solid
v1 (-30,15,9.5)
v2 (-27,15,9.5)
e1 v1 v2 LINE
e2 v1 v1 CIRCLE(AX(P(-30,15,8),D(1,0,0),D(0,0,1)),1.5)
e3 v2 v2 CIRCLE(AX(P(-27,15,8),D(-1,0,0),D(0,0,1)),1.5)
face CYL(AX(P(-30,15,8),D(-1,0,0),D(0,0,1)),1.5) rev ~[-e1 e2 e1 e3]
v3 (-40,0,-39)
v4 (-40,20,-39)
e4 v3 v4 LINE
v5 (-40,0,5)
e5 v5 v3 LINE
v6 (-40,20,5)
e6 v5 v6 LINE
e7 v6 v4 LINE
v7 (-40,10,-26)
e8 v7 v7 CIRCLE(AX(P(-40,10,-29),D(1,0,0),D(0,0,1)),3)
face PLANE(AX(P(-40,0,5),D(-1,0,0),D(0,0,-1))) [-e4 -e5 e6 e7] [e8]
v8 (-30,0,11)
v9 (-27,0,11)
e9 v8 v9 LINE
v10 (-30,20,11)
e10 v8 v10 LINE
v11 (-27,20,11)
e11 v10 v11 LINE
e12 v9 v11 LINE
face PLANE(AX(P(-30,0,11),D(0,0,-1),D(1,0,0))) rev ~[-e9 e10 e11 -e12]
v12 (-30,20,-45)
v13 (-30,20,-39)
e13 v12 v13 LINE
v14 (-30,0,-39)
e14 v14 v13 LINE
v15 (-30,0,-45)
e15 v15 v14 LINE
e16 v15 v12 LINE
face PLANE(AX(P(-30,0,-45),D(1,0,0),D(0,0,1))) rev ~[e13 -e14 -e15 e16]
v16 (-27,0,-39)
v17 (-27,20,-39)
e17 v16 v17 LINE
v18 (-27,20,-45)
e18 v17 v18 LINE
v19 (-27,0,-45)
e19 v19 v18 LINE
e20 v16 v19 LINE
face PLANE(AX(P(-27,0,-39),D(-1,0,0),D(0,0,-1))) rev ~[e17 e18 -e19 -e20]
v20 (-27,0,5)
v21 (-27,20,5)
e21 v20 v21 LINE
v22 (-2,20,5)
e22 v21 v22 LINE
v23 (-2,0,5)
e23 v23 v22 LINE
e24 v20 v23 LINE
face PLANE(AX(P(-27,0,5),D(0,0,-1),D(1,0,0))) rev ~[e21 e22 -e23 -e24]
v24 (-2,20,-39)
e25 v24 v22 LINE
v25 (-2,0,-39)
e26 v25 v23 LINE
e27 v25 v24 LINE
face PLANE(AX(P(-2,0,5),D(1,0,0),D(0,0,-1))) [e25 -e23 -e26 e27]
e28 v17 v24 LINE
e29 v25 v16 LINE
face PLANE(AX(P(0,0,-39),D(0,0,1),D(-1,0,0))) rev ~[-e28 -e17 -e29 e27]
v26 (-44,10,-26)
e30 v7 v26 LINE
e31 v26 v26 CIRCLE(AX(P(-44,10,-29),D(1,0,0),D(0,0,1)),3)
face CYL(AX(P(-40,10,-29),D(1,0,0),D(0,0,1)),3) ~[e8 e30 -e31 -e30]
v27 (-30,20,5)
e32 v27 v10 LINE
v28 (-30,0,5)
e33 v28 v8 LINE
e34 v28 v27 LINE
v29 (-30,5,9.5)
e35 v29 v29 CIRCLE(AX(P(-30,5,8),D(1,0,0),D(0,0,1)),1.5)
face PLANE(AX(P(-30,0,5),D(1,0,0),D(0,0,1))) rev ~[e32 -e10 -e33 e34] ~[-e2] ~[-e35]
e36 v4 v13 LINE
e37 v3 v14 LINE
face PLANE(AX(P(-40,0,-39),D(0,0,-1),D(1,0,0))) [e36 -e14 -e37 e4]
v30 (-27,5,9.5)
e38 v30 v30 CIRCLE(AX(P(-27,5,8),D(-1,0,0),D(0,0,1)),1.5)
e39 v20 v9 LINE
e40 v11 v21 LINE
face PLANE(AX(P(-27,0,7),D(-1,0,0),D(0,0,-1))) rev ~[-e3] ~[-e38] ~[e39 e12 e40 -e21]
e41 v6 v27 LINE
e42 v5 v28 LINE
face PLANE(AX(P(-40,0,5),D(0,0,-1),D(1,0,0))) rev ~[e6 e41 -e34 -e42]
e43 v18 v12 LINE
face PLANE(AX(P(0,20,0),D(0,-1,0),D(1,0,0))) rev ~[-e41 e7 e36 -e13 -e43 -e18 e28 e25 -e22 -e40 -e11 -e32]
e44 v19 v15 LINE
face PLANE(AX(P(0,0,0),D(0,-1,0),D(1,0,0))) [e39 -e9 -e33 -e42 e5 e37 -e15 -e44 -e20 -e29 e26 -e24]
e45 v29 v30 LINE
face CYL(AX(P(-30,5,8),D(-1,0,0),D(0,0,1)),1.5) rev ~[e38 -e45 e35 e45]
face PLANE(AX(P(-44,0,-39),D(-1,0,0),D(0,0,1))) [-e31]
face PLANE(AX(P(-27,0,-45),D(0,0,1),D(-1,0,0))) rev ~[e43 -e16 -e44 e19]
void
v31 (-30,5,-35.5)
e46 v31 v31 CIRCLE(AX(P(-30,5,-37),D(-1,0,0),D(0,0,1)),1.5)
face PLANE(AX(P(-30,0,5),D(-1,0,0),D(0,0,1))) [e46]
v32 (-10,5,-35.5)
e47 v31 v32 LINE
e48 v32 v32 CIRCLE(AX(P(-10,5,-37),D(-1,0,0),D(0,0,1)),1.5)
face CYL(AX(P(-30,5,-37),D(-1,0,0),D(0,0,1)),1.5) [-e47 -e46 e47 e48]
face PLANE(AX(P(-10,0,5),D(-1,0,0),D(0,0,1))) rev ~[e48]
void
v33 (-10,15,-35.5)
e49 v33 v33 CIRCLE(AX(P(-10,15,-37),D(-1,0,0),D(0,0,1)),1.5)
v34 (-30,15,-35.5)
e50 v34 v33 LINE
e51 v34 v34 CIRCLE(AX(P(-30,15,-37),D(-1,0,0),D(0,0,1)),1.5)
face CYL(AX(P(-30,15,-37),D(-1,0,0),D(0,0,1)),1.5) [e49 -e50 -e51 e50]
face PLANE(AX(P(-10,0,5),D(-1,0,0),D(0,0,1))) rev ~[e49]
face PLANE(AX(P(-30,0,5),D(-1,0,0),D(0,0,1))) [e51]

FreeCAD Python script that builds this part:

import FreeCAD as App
import Part
import Sketcher

V = App.Vector
Q = App.Units.Quantity


def add_polygon(sketch, points):
    """Adds a closed chain of lines whose ends are joined by coincident constraints."""
    first, n = sketch.GeometryCount, len(points)
    for a, b in zip(points, points[1:] + points[:1]):
        sketch.addGeometry(Part.LineSegment(App.Vector(*a, 0), App.Vector(*b, 0)), False)
    for i in range(n):
        sketch.addConstraint(Sketcher.Constraint("Coincident", first + i, 2, first + (i + 1) % n, 1))

doc = App.newDocument("Part")
body = doc.addObject("PartDesign::Body", "Body")

# Sketch on XZ plane
sketch1 = body.newObject("Sketcher::SketchObject", "Sketch")
sketch1.AttachmentSupport = (doc.getObject("XZ_Plane"), [""])
sketch1.MapMode = "FlatFace"
add_polygon(sketch1, [(-40, -39), (-40, 5), (-30, 5), (-30, 11), (-27, 11), (-27, 5), (0, 5), (0, -39), (-27, -39), (-27, -45), (-30, -45), (-30, -39)])  # lines 0-11
sketch1.addConstraint(Sketcher.Constraint("Vertical", 0))
sketch1.addConstraint(Sketcher.Constraint("Horizontal", 1))
sketch1.addConstraint(Sketcher.Constraint("Vertical", 2))
sketch1.addConstraint(Sketcher.Constraint("Horizontal", 3))
sketch1.addConstraint(Sketcher.Constraint("Vertical", 4))
sketch1.addConstraint(Sketcher.Constraint("Horizontal", 5))
sketch1.addConstraint(Sketcher.Constraint("Vertical", 6))
sketch1.addConstraint(Sketcher.Constraint("Horizontal", 7))
sketch1.addConstraint(Sketcher.Constraint("Vertical", 8))
sketch1.addConstraint(Sketcher.Constraint("Horizontal", 9))
sketch1.addConstraint(Sketcher.Constraint("Vertical", 10))
sketch1.addConstraint(Sketcher.Constraint("Horizontal", 11))
sketch1.addConstraint(Sketcher.Constraint("PointOnObject", 5, 2, -2))
sketch1.addConstraint(Sketcher.Constraint("Horizontal", 1, 2, 4, 2))
sketch1.addConstraint(Sketcher.Constraint("Horizontal", 7, 2, 10, 2))
sketch1.addConstraint(Sketcher.Constraint("Vertical", 4, 2, 7, 2))
sketch1.addConstraint(Sketcher.Constraint("Vertical", 2, 2, 9, 2))
sketch1.addConstraint(Sketcher.Constraint("Equal", 4, 8))
sketch1.addConstraint(Sketcher.Constraint("DistanceX", 1, 1, 1, 2, Q("10 mm")))
sketch1.addConstraint(Sketcher.Constraint("DistanceX", 3, 1, 3, 2, Q("3 mm")))
sketch1.addConstraint(Sketcher.Constraint("DistanceY", 0, 1, 0, 2, Q("44 mm")))
sketch1.addConstraint(Sketcher.Constraint("DistanceY", 2, 1, 2, 2, Q("6 mm")))
sketch1.addConstraint(Sketcher.Constraint("DistanceX", 0, 2, -1, 1, Q("40 mm")))
sketch1.addConstraint(Sketcher.Constraint("DistanceY", -1, 1, 0, 2, Q("5 mm")))
pad1 = body.newObject("PartDesign::Pad", "Pad")
pad1.Profile = sketch1
pad1.Length = 20
pad1.Reversed = True

# Sketch on YZ plane
sketch2 = body.newObject("Sketcher::SketchObject", "Sketch001")
sketch2.AttachmentSupport = (doc.getObject("YZ_Plane"), [""])
sketch2.MapMode = "FlatFace"
sketch2.AttachmentOffset = App.Placement(V(0, 0, -30), App.Rotation())
sketch2.addGeometry(Part.Circle(V(15, 8, 0), V(0, 0, 1), 1.5), False)
sketch2.addGeometry(Part.Circle(V(5, 8, 0), V(0, 0, 1), 1.5), False)
sketch2.addGeometry(Part.Circle(V(15, -37, 0), V(0, 0, 1), 1.5), False)
sketch2.addGeometry(Part.Circle(V(5, -37, 0), V(0, 0, 1), 1.5), False)
sketch2.addConstraint(Sketcher.Constraint("Equal", 0, 1))
sketch2.addConstraint(Sketcher.Constraint("Equal", 1, 2))
sketch2.addConstraint(Sketcher.Constraint("Equal", 2, 3))
sketch2.addConstraint(Sketcher.Constraint("Horizontal", 0, 3, 1, 3))
sketch2.addConstraint(Sketcher.Constraint("Horizontal", 2, 3, 3, 3))
sketch2.addConstraint(Sketcher.Constraint("Vertical", 0, 3, 2, 3))
sketch2.addConstraint(Sketcher.Constraint("Vertical", 1, 3, 3, 3))
sketch2.addConstraint(Sketcher.Constraint("Diameter", 0, Q("3 mm")))
sketch2.addConstraint(Sketcher.Constraint("DistanceX", -1, 1, 1, 3, Q("5 mm")))
sketch2.addConstraint(Sketcher.Constraint("DistanceX", 1, 3, 0, 3, Q("10 mm")))
sketch2.addConstraint(Sketcher.Constraint("DistanceY", -1, 1, 0, 3, Q("8 mm")))
sketch2.addConstraint(Sketcher.Constraint("DistanceY", 2, 3, -1, 1, Q("37 mm")))
pocket1 = body.newObject("PartDesign::Pocket", "Pocket")
pocket1.Profile = sketch2
pocket1.Length = 20
pocket1.Reversed = True

# Sketch on YZ plane
sketch3 = body.newObject("Sketcher::SketchObject", "Sketch002")
sketch3.AttachmentSupport = (doc.getObject("YZ_Plane"), [""])
sketch3.MapMode = "FlatFace"
sketch3.AttachmentOffset = App.Placement(V(0, 0, -40), App.Rotation())
sketch3.addGeometry(Part.Circle(V(10, -29, 0), V(0, 0, 1), 3), False)
sketch3.addConstraint(Sketcher.Constraint("Diameter", 0, Q("6 mm")))
sketch3.addConstraint(Sketcher.Constraint("DistanceX", -1, 1, 0, 3, Q("10 mm")))
sketch3.addConstraint(Sketcher.Constraint("DistanceY", 0, 3, -1, 1, Q("29 mm")))
pad2 = body.newObject("PartDesign::Pad", "Pad001")
pad2.Profile = sketch3
pad2.Length = 4
pad2.Reversed = True

# Sketch on YZ plane
sketch4 = body.newObject("Sketcher::SketchObject", "Sketch003")
sketch4.AttachmentSupport = (doc.getObject("YZ_Plane"), [""])
sketch4.MapMode = "FlatFace"
add_polygon(sketch4, [(20, 0), (0, 0), (0, -39), (20, -39)])  # lines 0-3
sketch4.addConstraint(Sketcher.Constraint("Horizontal", 0))
sketch4.addConstraint(Sketcher.Constraint("Vertical", 1))
sketch4.addConstraint(Sketcher.Constraint("Horizontal", 2))
sketch4.addConstraint(Sketcher.Constraint("Vertical", 3))
sketch4.addConstraint(Sketcher.Constraint("Coincident", 0, 2, -1, 1))
sketch4.addConstraint(Sketcher.Constraint("DistanceX", 0, 2, 0, 1, Q("20 mm")))
sketch4.addConstraint(Sketcher.Constraint("DistanceY", 1, 2, 1, 1, Q("39 mm")))
pocket2 = body.newObject("PartDesign::Pocket", "Pocket001")
pocket2.Profile = sketch4
pocket2.Length = 2

# Sketch on XZ plane
sketch5 = body.newObject("Sketcher::SketchObject", "Sketch004")
sketch5.AttachmentSupport = (doc.getObject("XZ_Plane"), [""])
sketch5.MapMode = "FlatFace"
add_polygon(sketch5, [(0, 0), (-2, 0), (-2, -39), (0, -39)])  # lines 0-3
sketch5.addConstraint(Sketcher.Constraint("Horizontal", 0))
sketch5.addConstraint(Sketcher.Constraint("Vertical", 1))
sketch5.addConstraint(Sketcher.Constraint("Horizontal", 2))
sketch5.addConstraint(Sketcher.Constraint("Vertical", 3))
sketch5.addConstraint(Sketcher.Constraint("Coincident", 3, 2, -1, 1))
sketch5.addConstraint(Sketcher.Constraint("DistanceX", 0, 2, 0, 1, Q("2 mm")))
sketch5.addConstraint(Sketcher.Constraint("DistanceY", 1, 2, 1, 1, Q("39 mm")))
pad3 = body.newObject("PartDesign::Pad", "Pad002")
pad3.Profile = sketch5
pad3.Length = 20
pad3.Reversed = True

# Sketch on YZ plane
sketch6 = body.newObject("Sketcher::SketchObject", "Sketch005")
sketch6.AttachmentSupport = (doc.getObject("YZ_Plane"), [""])
sketch6.MapMode = "FlatFace"
add_polygon(sketch6, [(0, -39), (20, -39), (20, 5), (0, 5)])  # lines 0-3
sketch6.addConstraint(Sketcher.Constraint("Horizontal", 0))
sketch6.addConstraint(Sketcher.Constraint("Vertical", 1))
sketch6.addConstraint(Sketcher.Constraint("Horizontal", 2))
sketch6.addConstraint(Sketcher.Constraint("Vertical", 3))
sketch6.addConstraint(Sketcher.Constraint("PointOnObject", 2, 2, -2))
sketch6.addConstraint(Sketcher.Constraint("DistanceX", 0, 1, 0, 2, Q("20 mm")))
sketch6.addConstraint(Sketcher.Constraint("DistanceY", 1, 1, 1, 2, Q("44 mm")))
sketch6.addConstraint(Sketcher.Constraint("DistanceY", 0, 2, -1, 1, Q("39 mm")))
pocket3 = body.newObject("PartDesign::Pocket", "Pocket002")
pocket3.Profile = sketch6
pocket3.Length = 2

doc.recompute()
